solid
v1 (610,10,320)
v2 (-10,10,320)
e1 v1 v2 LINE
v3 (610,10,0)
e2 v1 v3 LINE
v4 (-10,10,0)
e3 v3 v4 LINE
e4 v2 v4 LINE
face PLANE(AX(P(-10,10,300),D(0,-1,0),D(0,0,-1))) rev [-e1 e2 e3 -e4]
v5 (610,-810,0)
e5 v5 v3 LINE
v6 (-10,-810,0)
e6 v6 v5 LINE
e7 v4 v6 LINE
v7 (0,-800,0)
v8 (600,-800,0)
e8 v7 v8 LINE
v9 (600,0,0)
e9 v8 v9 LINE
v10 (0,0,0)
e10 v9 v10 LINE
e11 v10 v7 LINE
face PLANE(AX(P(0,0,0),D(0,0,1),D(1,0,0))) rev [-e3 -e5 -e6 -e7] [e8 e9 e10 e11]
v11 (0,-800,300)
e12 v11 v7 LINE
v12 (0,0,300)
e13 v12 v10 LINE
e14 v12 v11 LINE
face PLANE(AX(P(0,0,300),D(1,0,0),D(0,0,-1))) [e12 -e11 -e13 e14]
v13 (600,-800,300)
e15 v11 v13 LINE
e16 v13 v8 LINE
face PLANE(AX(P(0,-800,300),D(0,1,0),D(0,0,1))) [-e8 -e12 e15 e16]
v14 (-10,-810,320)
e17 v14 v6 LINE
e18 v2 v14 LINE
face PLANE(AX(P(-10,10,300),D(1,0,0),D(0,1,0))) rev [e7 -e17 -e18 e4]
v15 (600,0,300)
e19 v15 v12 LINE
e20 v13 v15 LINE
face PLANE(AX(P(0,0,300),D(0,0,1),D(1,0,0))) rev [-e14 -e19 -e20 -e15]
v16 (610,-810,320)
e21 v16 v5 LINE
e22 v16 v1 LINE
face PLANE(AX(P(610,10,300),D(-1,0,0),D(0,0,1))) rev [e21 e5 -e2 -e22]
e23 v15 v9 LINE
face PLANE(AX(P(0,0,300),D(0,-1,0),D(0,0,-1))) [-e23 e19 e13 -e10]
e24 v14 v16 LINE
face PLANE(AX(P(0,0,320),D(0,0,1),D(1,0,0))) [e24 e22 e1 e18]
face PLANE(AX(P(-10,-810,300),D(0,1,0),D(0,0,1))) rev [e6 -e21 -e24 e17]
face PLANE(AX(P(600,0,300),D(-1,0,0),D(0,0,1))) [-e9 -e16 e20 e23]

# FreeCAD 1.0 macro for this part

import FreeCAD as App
import Part
import Sketcher
Q = App.Units.Quantity


def add_polygon(sketch, points):
    """Adds a closed chain of lines whose ends are joined by coincident constraints."""
    first, n = sketch.GeometryCount, len(points)
    for a, b in zip(points, points[1:] + points[:1]):
        sketch.addGeometry(Part.LineSegment(App.Vector(*a, 0), App.Vector(*b, 0)), False)
    for i in range(n):
        sketch.addConstraint(Sketcher.Constraint("Coincident", first + i, 2, first + (i + 1) % n, 1))

doc = App.newDocument("Part")
params = doc.addObject("Spreadsheet::Sheet", "Params")
for row, (alias, value) in enumerate([
    ("sketch1_width", "620 mm"),
    ("sketch1_width2", "600 mm"),
    ("sketch1_height", "820 mm"),
    ("sketch1_height2", "800 mm"),
    ("pad1_length", "300 mm"),
    ("sketch2_width", "620 mm"),
    ("sketch2_height", "820 mm"),
    ("pad2_length", "20 mm"),
], start=1):
    params.set(f"A{row}", alias)
    params.set(f"B{row}", "=" + value)
    params.setAlias(f"B{row}", alias)

body = doc.addObject("PartDesign::Body", "Body")

# Sketch on XY plane
sketch1 = body.newObject("Sketcher::SketchObject", "Sketch")
sketch1.AttachmentSupport = (doc.getObject("XY_Plane"), [""])
sketch1.MapMode = "FlatFace"
add_polygon(sketch1, [(-10, 10), (-10, -810), (610, -810), (610, 10)])  # lines 0-3
add_polygon(sketch1, [(600, -800), (0, -800), (0, 0), (600, 0)])  # lines 4-7
sketch1.addConstraint([
    Sketcher.Constraint("Vertical", 0),
    Sketcher.Constraint("Horizontal", 1),
    Sketcher.Constraint("Vertical", 2),
    Sketcher.Constraint("Horizontal", 3),
    Sketcher.Constraint("Horizontal", 4),
    Sketcher.Constraint("Vertical", 5),
    Sketcher.Constraint("Horizontal", 6),
    Sketcher.Constraint("Vertical", 7),
    Sketcher.Constraint("Coincident", 5, 2, -1, 1),
    Sketcher.Constraint("DistanceX", 1, 1, 1, 2, Q("620 mm")),
    Sketcher.Constraint("DistanceX", 4, 2, 4, 1, Q("600 mm")),
    Sketcher.Constraint("DistanceY", 0, 2, 0, 1, Q("820 mm")),
    Sketcher.Constraint("DistanceY", 5, 1, 5, 2, Q("800 mm")),
    Sketcher.Constraint("DistanceX", 0, 2, -1, 1, Q("10 mm")),
    Sketcher.Constraint("DistanceY", 0, 2, -1, 1, Q("810 mm")),
])
sketch1.setExpression("Constraints[17]", "Params.sketch1_width")
sketch1.setExpression("Constraints[18]", "Params.sketch1_width2")
sketch1.setExpression("Constraints[19]", "Params.sketch1_height")
sketch1.setExpression("Constraints[20]", "Params.sketch1_height2")
pad1 = body.newObject("PartDesign::Pad", "Pad")
pad1.Profile = sketch1
pad1.setExpression("Length", "Params.pad1_length")

# Sketch on XY plane
sketch2 = body.newObject("Sketcher::SketchObject", "Sketch001")
sketch2.AttachmentSupport = (doc.getObject("XY_Plane"), [""])
sketch2.MapMode = "FlatFace"
sketch2.AttachmentOffset = App.Placement(App.Vector(0, 0, 300), App.Rotation())
add_polygon(sketch2, [(-10, 10), (-10, -810), (610, -810), (610, 10)])  # lines 0-3
sketch2.addConstraint([
    Sketcher.Constraint("Vertical", 0),
    Sketcher.Constraint("Horizontal", 1),
    Sketcher.Constraint("Vertical", 2),
    Sketcher.Constraint("Horizontal", 3),
    Sketcher.Constraint("DistanceX", 1, 1, 1, 2, Q("620 mm")),
    Sketcher.Constraint("DistanceY", 0, 2, 0, 1, Q("820 mm")),
    Sketcher.Constraint("DistanceX", 0, 2, -1, 1, Q("10 mm")),
    Sketcher.Constraint("DistanceY", 0, 2, -1, 1, Q("810 mm")),
])
sketch2.setExpression("Constraints[8]", "Params.sketch2_width")
sketch2.setExpression("Constraints[9]", "Params.sketch2_height")
pad2 = body.newObject("PartDesign::Pad", "Pad001")
pad2.Profile = sketch2
pad2.setExpression("Length", "Params.pad2_length")

doc.recompute()
